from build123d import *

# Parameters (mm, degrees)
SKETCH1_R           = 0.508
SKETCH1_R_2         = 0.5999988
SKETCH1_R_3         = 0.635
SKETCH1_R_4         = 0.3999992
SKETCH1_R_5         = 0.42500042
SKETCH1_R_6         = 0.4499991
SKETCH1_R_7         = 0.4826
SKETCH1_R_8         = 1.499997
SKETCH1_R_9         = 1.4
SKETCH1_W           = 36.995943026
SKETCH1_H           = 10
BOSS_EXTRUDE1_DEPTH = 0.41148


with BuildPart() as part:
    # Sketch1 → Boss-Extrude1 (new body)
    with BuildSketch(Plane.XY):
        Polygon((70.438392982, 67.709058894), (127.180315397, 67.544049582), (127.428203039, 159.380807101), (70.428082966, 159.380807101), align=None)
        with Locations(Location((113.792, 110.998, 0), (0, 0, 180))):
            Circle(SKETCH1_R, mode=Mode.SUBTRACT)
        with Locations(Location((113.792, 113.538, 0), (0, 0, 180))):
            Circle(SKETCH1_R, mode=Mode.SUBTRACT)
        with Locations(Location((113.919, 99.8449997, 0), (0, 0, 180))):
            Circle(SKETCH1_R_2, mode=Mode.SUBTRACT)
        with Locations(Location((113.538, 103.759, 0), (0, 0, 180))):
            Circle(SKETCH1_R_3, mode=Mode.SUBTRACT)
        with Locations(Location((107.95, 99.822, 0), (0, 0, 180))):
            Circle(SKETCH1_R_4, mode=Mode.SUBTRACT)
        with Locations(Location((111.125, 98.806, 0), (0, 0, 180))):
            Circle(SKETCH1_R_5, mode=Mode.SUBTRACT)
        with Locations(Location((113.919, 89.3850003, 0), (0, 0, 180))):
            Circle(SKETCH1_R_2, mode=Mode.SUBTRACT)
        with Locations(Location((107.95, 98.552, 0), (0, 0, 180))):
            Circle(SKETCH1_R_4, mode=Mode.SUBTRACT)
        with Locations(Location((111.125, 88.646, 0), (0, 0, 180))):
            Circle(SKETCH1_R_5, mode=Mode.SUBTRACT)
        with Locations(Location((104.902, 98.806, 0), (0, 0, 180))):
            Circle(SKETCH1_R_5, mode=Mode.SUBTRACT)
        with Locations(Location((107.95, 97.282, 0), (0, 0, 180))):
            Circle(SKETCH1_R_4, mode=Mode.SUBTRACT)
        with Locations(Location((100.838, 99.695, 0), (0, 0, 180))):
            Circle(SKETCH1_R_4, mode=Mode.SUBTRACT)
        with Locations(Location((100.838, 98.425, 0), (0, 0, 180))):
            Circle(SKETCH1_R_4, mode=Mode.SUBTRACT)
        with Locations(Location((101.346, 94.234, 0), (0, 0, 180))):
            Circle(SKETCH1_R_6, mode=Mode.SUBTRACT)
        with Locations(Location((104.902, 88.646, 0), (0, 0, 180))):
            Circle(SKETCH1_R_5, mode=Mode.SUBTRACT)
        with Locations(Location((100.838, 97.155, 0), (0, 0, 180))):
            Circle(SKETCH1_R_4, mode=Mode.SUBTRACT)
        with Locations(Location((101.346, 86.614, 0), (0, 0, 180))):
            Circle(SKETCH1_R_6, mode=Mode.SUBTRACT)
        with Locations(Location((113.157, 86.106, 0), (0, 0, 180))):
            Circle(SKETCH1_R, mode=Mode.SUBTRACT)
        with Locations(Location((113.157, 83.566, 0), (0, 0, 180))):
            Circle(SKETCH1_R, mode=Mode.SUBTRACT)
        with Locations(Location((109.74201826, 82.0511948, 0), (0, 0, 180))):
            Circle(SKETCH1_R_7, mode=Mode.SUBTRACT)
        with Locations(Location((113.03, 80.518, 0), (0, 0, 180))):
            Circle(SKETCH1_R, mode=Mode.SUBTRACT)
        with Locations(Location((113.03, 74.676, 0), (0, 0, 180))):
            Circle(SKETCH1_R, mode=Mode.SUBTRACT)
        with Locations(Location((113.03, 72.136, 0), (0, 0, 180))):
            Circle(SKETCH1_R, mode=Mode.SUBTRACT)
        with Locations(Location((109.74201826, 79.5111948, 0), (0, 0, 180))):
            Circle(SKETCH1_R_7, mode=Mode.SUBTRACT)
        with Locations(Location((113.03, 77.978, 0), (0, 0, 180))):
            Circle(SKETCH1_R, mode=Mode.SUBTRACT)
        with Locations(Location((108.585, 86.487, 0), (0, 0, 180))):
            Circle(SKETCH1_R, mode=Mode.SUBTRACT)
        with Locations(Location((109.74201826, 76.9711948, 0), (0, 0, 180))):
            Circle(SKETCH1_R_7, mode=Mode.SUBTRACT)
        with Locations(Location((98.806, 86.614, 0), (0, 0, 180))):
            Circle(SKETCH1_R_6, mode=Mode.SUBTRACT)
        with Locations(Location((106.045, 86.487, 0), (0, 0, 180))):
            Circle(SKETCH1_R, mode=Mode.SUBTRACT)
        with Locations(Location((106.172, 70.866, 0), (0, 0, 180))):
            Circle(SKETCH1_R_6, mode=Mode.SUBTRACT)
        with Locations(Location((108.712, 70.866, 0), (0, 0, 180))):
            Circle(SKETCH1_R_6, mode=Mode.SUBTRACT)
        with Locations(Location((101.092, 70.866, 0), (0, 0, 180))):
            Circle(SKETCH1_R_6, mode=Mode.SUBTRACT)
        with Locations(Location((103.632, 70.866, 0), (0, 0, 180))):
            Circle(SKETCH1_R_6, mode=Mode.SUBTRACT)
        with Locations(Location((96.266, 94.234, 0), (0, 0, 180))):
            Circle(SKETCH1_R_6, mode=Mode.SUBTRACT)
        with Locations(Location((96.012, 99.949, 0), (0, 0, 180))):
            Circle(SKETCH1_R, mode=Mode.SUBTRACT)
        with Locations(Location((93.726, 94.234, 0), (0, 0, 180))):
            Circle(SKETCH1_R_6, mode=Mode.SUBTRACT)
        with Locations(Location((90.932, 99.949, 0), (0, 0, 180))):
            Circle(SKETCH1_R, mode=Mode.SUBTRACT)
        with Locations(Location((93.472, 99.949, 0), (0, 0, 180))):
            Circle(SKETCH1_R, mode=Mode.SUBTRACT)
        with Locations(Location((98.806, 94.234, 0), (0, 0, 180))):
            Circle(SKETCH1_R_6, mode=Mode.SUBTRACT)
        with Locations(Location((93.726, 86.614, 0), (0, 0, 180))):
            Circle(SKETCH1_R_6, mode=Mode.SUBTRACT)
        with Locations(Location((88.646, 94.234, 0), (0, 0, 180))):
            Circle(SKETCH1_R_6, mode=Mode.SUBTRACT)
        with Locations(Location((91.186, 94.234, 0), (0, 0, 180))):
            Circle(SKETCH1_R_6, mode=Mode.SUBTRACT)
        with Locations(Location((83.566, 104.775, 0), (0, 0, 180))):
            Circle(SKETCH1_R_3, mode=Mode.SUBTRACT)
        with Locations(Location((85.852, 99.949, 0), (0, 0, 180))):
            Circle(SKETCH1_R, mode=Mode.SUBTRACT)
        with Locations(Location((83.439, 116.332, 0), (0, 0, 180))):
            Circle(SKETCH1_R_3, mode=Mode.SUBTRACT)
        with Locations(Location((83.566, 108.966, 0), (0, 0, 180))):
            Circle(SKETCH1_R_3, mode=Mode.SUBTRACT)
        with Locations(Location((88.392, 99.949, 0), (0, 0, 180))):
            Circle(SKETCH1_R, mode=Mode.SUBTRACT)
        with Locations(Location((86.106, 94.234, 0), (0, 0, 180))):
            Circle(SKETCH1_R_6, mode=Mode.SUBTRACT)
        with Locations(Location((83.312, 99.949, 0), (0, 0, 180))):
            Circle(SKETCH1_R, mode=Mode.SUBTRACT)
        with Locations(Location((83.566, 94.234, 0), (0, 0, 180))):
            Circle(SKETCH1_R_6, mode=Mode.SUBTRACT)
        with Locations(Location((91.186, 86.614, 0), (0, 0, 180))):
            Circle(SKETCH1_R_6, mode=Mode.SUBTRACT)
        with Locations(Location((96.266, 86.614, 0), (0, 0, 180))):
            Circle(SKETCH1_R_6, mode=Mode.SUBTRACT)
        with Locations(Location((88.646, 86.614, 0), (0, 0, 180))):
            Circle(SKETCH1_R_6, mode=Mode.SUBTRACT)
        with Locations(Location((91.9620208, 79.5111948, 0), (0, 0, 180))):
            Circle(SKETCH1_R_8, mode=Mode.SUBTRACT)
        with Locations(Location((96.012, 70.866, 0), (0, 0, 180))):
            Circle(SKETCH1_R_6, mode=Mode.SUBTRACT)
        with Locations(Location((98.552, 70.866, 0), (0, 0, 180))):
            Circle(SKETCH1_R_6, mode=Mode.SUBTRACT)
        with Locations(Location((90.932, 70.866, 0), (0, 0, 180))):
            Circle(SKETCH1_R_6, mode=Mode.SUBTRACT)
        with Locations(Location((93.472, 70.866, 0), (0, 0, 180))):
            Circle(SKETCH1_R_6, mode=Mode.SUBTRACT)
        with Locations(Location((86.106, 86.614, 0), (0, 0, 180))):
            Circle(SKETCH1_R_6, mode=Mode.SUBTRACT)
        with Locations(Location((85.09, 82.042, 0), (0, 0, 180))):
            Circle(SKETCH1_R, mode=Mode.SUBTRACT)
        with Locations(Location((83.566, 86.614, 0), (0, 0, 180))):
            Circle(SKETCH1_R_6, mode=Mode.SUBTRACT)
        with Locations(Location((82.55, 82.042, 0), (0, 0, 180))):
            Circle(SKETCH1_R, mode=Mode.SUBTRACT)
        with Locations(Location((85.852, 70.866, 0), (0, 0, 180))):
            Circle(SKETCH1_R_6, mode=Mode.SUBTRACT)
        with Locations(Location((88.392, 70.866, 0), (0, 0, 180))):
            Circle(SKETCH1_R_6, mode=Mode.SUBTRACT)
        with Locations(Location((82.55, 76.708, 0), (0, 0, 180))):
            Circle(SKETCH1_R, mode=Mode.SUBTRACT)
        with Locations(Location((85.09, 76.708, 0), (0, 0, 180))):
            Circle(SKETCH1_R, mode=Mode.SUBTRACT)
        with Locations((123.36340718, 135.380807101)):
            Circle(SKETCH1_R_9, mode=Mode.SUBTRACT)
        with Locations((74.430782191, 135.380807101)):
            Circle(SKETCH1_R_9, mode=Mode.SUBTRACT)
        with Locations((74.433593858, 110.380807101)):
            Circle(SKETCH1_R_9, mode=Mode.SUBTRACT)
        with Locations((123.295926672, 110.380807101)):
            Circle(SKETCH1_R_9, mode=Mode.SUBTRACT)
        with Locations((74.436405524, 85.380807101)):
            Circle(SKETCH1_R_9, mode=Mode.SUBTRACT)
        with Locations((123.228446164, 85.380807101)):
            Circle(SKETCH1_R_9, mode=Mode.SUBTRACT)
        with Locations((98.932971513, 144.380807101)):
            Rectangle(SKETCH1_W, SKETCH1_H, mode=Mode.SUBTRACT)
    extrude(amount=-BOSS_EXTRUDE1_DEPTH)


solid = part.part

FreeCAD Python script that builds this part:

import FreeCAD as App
import Part
import Sketcher

V = App.Vector
Q = App.Units.Quantity

doc = App.newDocument("Part")
body = doc.addObject("PartDesign::Body", "Body")

sketch1 = body.newObject("Sketcher::SketchObject", "Sketch")
sketch1.AttachmentSupport = (doc.getObject("XY_Plane"), [""])
sketch1.MapMode = "FlatFace"
sketch1.addGeometry(Part.LineSegment(V(70.44, 67.71, 0), V(127.18, 67.54, 0)), False)
sketch1.addGeometry(Part.LineSegment(V(127.18, 67.54, 0), V(127.43, 159.38, 0)), False)
sketch1.addGeometry(Part.LineSegment(V(127.43, 159.38, 0), V(70.43, 159.38, 0)), False)
sketch1.addGeometry(Part.LineSegment(V(70.43, 159.38, 0), V(70.44, 67.71, 0)), False)
sketch1.addGeometry(Part.Circle(V(85.85, 70.87, 0), V(0, 0, 1), 0.45), False)
sketch1.addGeometry(Part.Circle(V(82.55, 76.71, 0), V(0, 0, 1), 0.51), False)
sketch1.addGeometry(Part.Circle(V(85.09, 76.71, 0), V(0, 0, 1), 0.51), False)
sketch1.addGeometry(Part.Circle(V(74.44, 85.38, 0), V(0, 0, 1), 1.4), False)
sketch1.addGeometry(Part.Circle(V(82.55, 82.04, 0), V(0, 0, 1), 0.51), False)
sketch1.addGeometry(Part.Circle(V(85.09, 82.04, 0), V(0, 0, 1), 0.51), False)
sketch1.addGeometry(Part.Circle(V(83.57, 86.61, 0), V(0, 0, 1), 0.45), False)
sketch1.addGeometry(Part.Circle(V(88.39, 70.87, 0), V(0, 0, 1), 0.45), False)
sketch1.addGeometry(Part.Circle(V(90.93, 70.87, 0), V(0, 0, 1), 0.45), False)
sketch1.addGeometry(Part.Circle(V(91.96, 79.51, 0), V(0, 0, 1), 1.5), False)
sketch1.addGeometry(Part.Circle(V(93.47, 70.87, 0), V(0, 0, 1), 0.45), False)
sketch1.addGeometry(Part.Circle(V(96.01, 70.87, 0), V(0, 0, 1), 0.45), False)
sketch1.addGeometry(Part.Circle(V(98.55, 70.87, 0), V(0, 0, 1), 0.45), False)
sketch1.addGeometry(Part.Circle(V(86.11, 86.61, 0), V(0, 0, 1), 0.45), False)
sketch1.addGeometry(Part.Circle(V(88.65, 86.61, 0), V(0, 0, 1), 0.45), False)
sketch1.addGeometry(Part.Circle(V(91.19, 86.61, 0), V(0, 0, 1), 0.45), False)
sketch1.addGeometry(Part.Circle(V(93.73, 86.61, 0), V(0, 0, 1), 0.45), False)
sketch1.addGeometry(Part.Circle(V(96.27, 86.61, 0), V(0, 0, 1), 0.45), False)
sketch1.addGeometry(Part.Circle(V(98.81, 86.61, 0), V(0, 0, 1), 0.45), False)
sketch1.addGeometry(Part.Circle(V(83.57, 94.23, 0), V(0, 0, 1), 0.45), False)
sketch1.addGeometry(Part.Circle(V(83.31, 99.95, 0), V(0, 0, 1), 0.51), False)
sketch1.addGeometry(Part.Circle(V(85.85, 99.95, 0), V(0, 0, 1), 0.51), False)
sketch1.addGeometry(Part.Circle(V(83.57, 104.78, 0), V(0, 0, 1), 0.64), False)
sketch1.addGeometry(Part.Circle(V(83.57, 108.97, 0), V(0, 0, 1), 0.64), False)
sketch1.addGeometry(Part.Circle(V(86.11, 94.23, 0), V(0, 0, 1), 0.45), False)
sketch1.addGeometry(Part.Circle(V(88.65, 94.23, 0), V(0, 0, 1), 0.45), False)
sketch1.addGeometry(Part.Circle(V(91.19, 94.23, 0), V(0, 0, 1), 0.45), False)
sketch1.addGeometry(Part.Circle(V(88.39, 99.95, 0), V(0, 0, 1), 0.51), False)
sketch1.addGeometry(Part.Circle(V(90.93, 99.95, 0), V(0, 0, 1), 0.51), False)
sketch1.addGeometry(Part.Circle(V(93.73, 94.23, 0), V(0, 0, 1), 0.45), False)
sketch1.addGeometry(Part.Circle(V(96.27, 94.23, 0), V(0, 0, 1), 0.45), False)
sketch1.addGeometry(Part.Circle(V(98.81, 94.23, 0), V(0, 0, 1), 0.45), False)
sketch1.addGeometry(Part.Circle(V(93.47, 99.95, 0), V(0, 0, 1), 0.51), False)
sketch1.addGeometry(Part.Circle(V(96.01, 99.95, 0), V(0, 0, 1), 0.51), False)
sketch1.addGeometry(Part.Circle(V(101.09, 70.87, 0), V(0, 0, 1), 0.45), False)
sketch1.addGeometry(Part.Circle(V(103.63, 70.87, 0), V(0, 0, 1), 0.45), False)
sketch1.addGeometry(Part.Circle(V(106.17, 70.87, 0), V(0, 0, 1), 0.45), False)
sketch1.addGeometry(Part.Circle(V(108.71, 70.87, 0), V(0, 0, 1), 0.45), False)
sketch1.addGeometry(Part.Circle(V(109.74, 76.97, 0), V(0, 0, 1), 0.48), False)
sketch1.addGeometry(Part.Circle(V(109.74, 79.51, 0), V(0, 0, 1), 0.48), False)
sketch1.addGeometry(Part.Circle(V(101.35, 86.61, 0), V(0, 0, 1), 0.45), False)
sketch1.addGeometry(Part.Circle(V(104.9, 88.65, 0), V(0, 0, 1), 0.43), False)
sketch1.addGeometry(Part.Circle(V(109.74, 82.05, 0), V(0, 0, 1), 0.48), False)
sketch1.addGeometry(Part.Circle(V(106.05, 86.49, 0), V(0, 0, 1), 0.51), False)
sketch1.addGeometry(Part.Circle(V(108.58, 86.49, 0), V(0, 0, 1), 0.51), False)
sketch1.addGeometry(Part.Circle(V(111.12, 88.65, 0), V(0, 0, 1), 0.43), False)
sketch1.addGeometry(Part.Circle(V(113.03, 72.14, 0), V(0, 0, 1), 0.51), False)
sketch1.addGeometry(Part.Circle(V(113.03, 74.68, 0), V(0, 0, 1), 0.51), False)
sketch1.addGeometry(Part.Circle(V(113.03, 77.98, 0), V(0, 0, 1), 0.51), False)
sketch1.addGeometry(Part.Circle(V(113.03, 80.52, 0), V(0, 0, 1), 0.51), False)
sketch1.addGeometry(Part.Circle(V(113.16, 83.57, 0), V(0, 0, 1), 0.51), False)
sketch1.addGeometry(Part.Circle(V(113.16, 86.11, 0), V(0, 0, 1), 0.51), False)
sketch1.addGeometry(Part.Circle(V(113.92, 89.39, 0), V(0, 0, 1), 0.6), False)
sketch1.addGeometry(Part.Circle(V(123.23, 85.38, 0), V(0, 0, 1), 1.4), False)
sketch1.addGeometry(Part.Circle(V(101.35, 94.23, 0), V(0, 0, 1), 0.45), False)
sketch1.addGeometry(Part.Circle(V(100.84, 97.16, 0), V(0, 0, 1), 0.4), False)
sketch1.addGeometry(Part.Circle(V(100.84, 98.42, 0), V(0, 0, 1), 0.4), False)
sketch1.addGeometry(Part.Circle(V(100.84, 99.69, 0), V(0, 0, 1), 0.4), False)
sketch1.addGeometry(Part.Circle(V(104.9, 98.81, 0), V(0, 0, 1), 0.43), False)
sketch1.addGeometry(Part.Circle(V(107.95, 97.28, 0), V(0, 0, 1), 0.4), False)
sketch1.addGeometry(Part.Circle(V(107.95, 98.55, 0), V(0, 0, 1), 0.4), False)
sketch1.addGeometry(Part.Circle(V(107.95, 99.82, 0), V(0, 0, 1), 0.4), False)
sketch1.addGeometry(Part.Circle(V(111.12, 98.81, 0), V(0, 0, 1), 0.43), False)
sketch1.addGeometry(Part.Circle(V(113.92, 99.84, 0), V(0, 0, 1), 0.6), False)
sketch1.addGeometry(Part.Circle(V(113.54, 103.76, 0), V(0, 0, 1), 0.64), False)
sketch1.addGeometry(Part.Circle(V(74.43, 110.38, 0), V(0, 0, 1), 1.4), False)
sketch1.addGeometry(Part.Circle(V(83.44, 116.33, 0), V(0, 0, 1), 0.64), False)
sketch1.addGeometry(Part.Circle(V(74.43, 135.38, 0), V(0, 0, 1), 1.4), False)
sketch1.addGeometry(Part.Circle(V(113.79, 111, 0), V(0, 0, 1), 0.51), False)
sketch1.addGeometry(Part.Circle(V(113.79, 113.54, 0), V(0, 0, 1), 0.51), False)
sketch1.addGeometry(Part.Circle(V(123.3, 110.38, 0), V(0, 0, 1), 1.4), False)
sketch1.addGeometry(Part.LineSegment(V(117.43, 139.38, 0), V(80.44, 139.38, 0)), False)
sketch1.addGeometry(Part.LineSegment(V(80.44, 139.38, 0), V(80.44, 149.38, 0)), False)
sketch1.addGeometry(Part.LineSegment(V(80.44, 149.38, 0), V(117.43, 149.38, 0)), False)
sketch1.addGeometry(Part.LineSegment(V(117.43, 149.38, 0), V(117.43, 139.38, 0)), False)
sketch1.addGeometry(Part.Circle(V(123.36, 135.38, 0), V(0, 0, 1), 1.4), False)
sketch1.addConstraint(Sketcher.Constraint("Coincident", 0, 2, 1, 1))
sketch1.addConstraint(Sketcher.Constraint("Coincident", 1, 2, 2, 1))
sketch1.addConstraint(Sketcher.Constraint("Coincident", 2, 2, 3, 1))
sketch1.addConstraint(Sketcher.Constraint("Coincident", 3, 2, 0, 1))
sketch1.addConstraint(Sketcher.Constraint("Coincident", 75, 2, 76, 1))
sketch1.addConstraint(Sketcher.Constraint("Coincident", 76, 2, 77, 1))
sketch1.addConstraint(Sketcher.Constraint("Coincident", 77, 2, 78, 1))
sketch1.addConstraint(Sketcher.Constraint("Coincident", 78, 2, 75, 1))
sketch1.addConstraint(Sketcher.Constraint("Horizontal", 2))
sketch1.addConstraint(Sketcher.Constraint("Horizontal", 75))
sketch1.addConstraint(Sketcher.Constraint("Vertical", 76))
sketch1.addConstraint(Sketcher.Constraint("Horizontal", 77))
sketch1.addConstraint(Sketcher.Constraint("Vertical", 78))
sketch1.addConstraint(Sketcher.Constraint("Equal", 5, 6))
sketch1.addConstraint(Sketcher.Constraint("Equal", 6, 8))
sketch1.addConstraint(Sketcher.Constraint("Equal", 8, 9))
sketch1.addConstraint(Sketcher.Constraint("Equal", 4, 10))
sketch1.addConstraint(Sketcher.Constraint("Equal", 10, 11))
sketch1.addConstraint(Sketcher.Constraint("Equal", 11, 12))
sketch1.addConstraint(Sketcher.Constraint("Equal", 12, 14))
sketch1.addConstraint(Sketcher.Constraint("Equal", 14, 15))
sketch1.addConstraint(Sketcher.Constraint("Equal", 15, 16))
sketch1.addConstraint(Sketcher.Constraint("Equal", 16, 17))
sketch1.addConstraint(Sketcher.Constraint("Equal", 17, 18))
sketch1.addConstraint(Sketcher.Constraint("Equal", 18, 19))
sketch1.addConstraint(Sketcher.Constraint("Equal", 19, 20))
sketch1.addConstraint(Sketcher.Constraint("Equal", 20, 21))
sketch1.addConstraint(Sketcher.Constraint("Equal", 21, 22))
sketch1.addConstraint(Sketcher.Constraint("Equal", 22, 23))
sketch1.addConstraint(Sketcher.Constraint("Equal", 9, 24))
sketch1.addConstraint(Sketcher.Constraint("Equal", 24, 25))
sketch1.addConstraint(Sketcher.Constraint("Equal", 26, 27))
sketch1.addConstraint(Sketcher.Constraint("Equal", 23, 28))
sketch1.addConstraint(Sketcher.Constraint("Equal", 28, 29))
sketch1.addConstraint(Sketcher.Constraint("Equal", 29, 30))
sketch1.addConstraint(Sketcher.Constraint("Equal", 25, 31))
sketch1.addConstraint(Sketcher.Constraint("Equal", 31, 32))
sketch1.addConstraint(Sketcher.Constraint("Equal", 30, 33))
sketch1.addConstraint(Sketcher.Constraint("Equal", 33, 34))
sketch1.addConstraint(Sketcher.Constraint("Equal", 34, 35))
sketch1.addConstraint(Sketcher.Constraint("Equal", 32, 36))
sketch1.addConstraint(Sketcher.Constraint("Equal", 36, 37))
sketch1.addConstraint(Sketcher.Constraint("Equal", 35, 38))
sketch1.addConstraint(Sketcher.Constraint("Equal", 38, 39))
sketch1.addConstraint(Sketcher.Constraint("Equal", 39, 40))
sketch1.addConstraint(Sketcher.Constraint("Equal", 40, 41))
sketch1.addConstraint(Sketcher.Constraint("Equal", 42, 43))
sketch1.addConstraint(Sketcher.Constraint("Equal", 41, 44))
sketch1.addConstraint(Sketcher.Constraint("Equal", 43, 46))
sketch1.addConstraint(Sketcher.Constraint("Equal", 37, 47))
sketch1.addConstraint(Sketcher.Constraint("Equal", 47, 48))
sketch1.addConstraint(Sketcher.Constraint("Equal", 45, 49))
sketch1.addConstraint(Sketcher.Constraint("Equal", 48, 50))
sketch1.addConstraint(Sketcher.Constraint("Equal", 50, 51))
sketch1.addConstraint(Sketcher.Constraint("Equal", 51, 52))
sketch1.addConstraint(Sketcher.Constraint("Equal", 52, 53))
sketch1.addConstraint(Sketcher.Constraint("Equal", 53, 54))
sketch1.addConstraint(Sketcher.Constraint("Equal", 54, 55))
sketch1.addConstraint(Sketcher.Constraint("Equal", 7, 57))
sketch1.addConstraint(Sketcher.Constraint("Equal", 44, 58))
sketch1.addConstraint(Sketcher.Constraint("Equal", 59, 60))
sketch1.addConstraint(Sketcher.Constraint("Equal", 60, 61))
sketch1.addConstraint(Sketcher.Constraint("Equal", 49, 62))
sketch1.addConstraint(Sketcher.Constraint("Equal", 61, 63))
sketch1.addConstraint(Sketcher.Constraint("Equal", 63, 64))
sketch1.addConstraint(Sketcher.Constraint("Equal", 64, 65))
sketch1.addConstraint(Sketcher.Constraint("Equal", 62, 66))
sketch1.addConstraint(Sketcher.Constraint("Equal", 56, 67))
sketch1.addConstraint(Sketcher.Constraint("Equal", 27, 68))
sketch1.addConstraint(Sketcher.Constraint("Equal", 57, 69))
sketch1.addConstraint(Sketcher.Constraint("Equal", 68, 70))
sketch1.addConstraint(Sketcher.Constraint("Equal", 69, 71))
sketch1.addConstraint(Sketcher.Constraint("Equal", 55, 72))
sketch1.addConstraint(Sketcher.Constraint("Equal", 72, 73))
sketch1.addConstraint(Sketcher.Constraint("Equal", 71, 74))
sketch1.addConstraint(Sketcher.Constraint("Equal", 74, 79))
sketch1.addConstraint(Sketcher.Constraint("Horizontal", 5, 3, 6, 3))
sketch1.addConstraint(Sketcher.Constraint("Horizontal", 8, 3, 9, 3))
sketch1.addConstraint(Sketcher.Constraint("Horizontal", 4, 3, 11, 3))
sketch1.addConstraint(Sketcher.Constraint("Horizontal", 11, 3, 12, 3))
sketch1.addConstraint(Sketcher.Constraint("Horizontal", 12, 3, 14, 3))
sketch1.addConstraint(Sketcher.Constraint("Horizontal", 14, 3, 15, 3))
sketch1.addConstraint(Sketcher.Constraint("Horizontal", 15, 3, 16, 3))
sketch1.addConstraint(Sketcher.Constraint("Horizontal", 10, 3, 17, 3))
sketch1.addConstraint(Sketcher.Constraint("Horizontal", 17, 3, 18, 3))
sketch1.addConstraint(Sketcher.Constraint("Horizontal", 18, 3, 19, 3))
sketch1.addConstraint(Sketcher.Constraint("Horizontal", 19, 3, 20, 3))
sketch1.addConstraint(Sketcher.Constraint("Horizontal", 20, 3, 21, 3))
sketch1.addConstraint(Sketcher.Constraint("Horizontal", 21, 3, 22, 3))
sketch1.addConstraint(Sketcher.Constraint("Horizontal", 24, 3, 25, 3))
sketch1.addConstraint(Sketcher.Constraint("Horizontal", 23, 3, 28, 3))
sketch1.addConstraint(Sketcher.Constraint("Horizontal", 28, 3, 29, 3))
sketch1.addConstraint(Sketcher.Constraint("Horizontal", 29, 3, 30, 3))
sketch1.addConstraint(Sketcher.Constraint("Horizontal", 25, 3, 31, 3))
sketch1.addConstraint(Sketcher.Constraint("Horizontal", 31, 3, 32, 3))
sketch1.addConstraint(Sketcher.Constraint("Horizontal", 30, 3, 33, 3))
sketch1.addConstraint(Sketcher.Constraint("Horizontal", 33, 3, 34, 3))
sketch1.addConstraint(Sketcher.Constraint("Horizontal", 34, 3, 35, 3))
sketch1.addConstraint(Sketcher.Constraint("Horizontal", 32, 3, 36, 3))
sketch1.addConstraint(Sketcher.Constraint("Horizontal", 36, 3, 37, 3))
sketch1.addConstraint(Sketcher.Constraint("Horizontal", 16, 3, 38, 3))
sketch1.addConstraint(Sketcher.Constraint("Horizontal", 38, 3, 39, 3))
sketch1.addConstraint(Sketcher.Constraint("Horizontal", 39, 3, 40, 3))
sketch1.addConstraint(Sketcher.Constraint("Horizontal", 40, 3, 41, 3))
sketch1.addConstraint(Sketcher.Constraint("Horizontal", 13, 3, 43, 3))
sketch1.addConstraint(Sketcher.Constraint("Horizontal", 22, 3, 44, 3))
sketch1.addConstraint(Sketcher.Constraint("Horizontal", 47, 3, 48, 3))
sketch1.addConstraint(Sketcher.Constraint("Horizontal", 45, 3, 49, 3))
sketch1.addConstraint(Sketcher.Constraint("Horizontal", 7, 3, 57, 3))
sketch1.addConstraint(Sketcher.Constraint("Horizontal", 35, 3, 58, 3))
sketch1.addConstraint(Sketcher.Constraint("Horizontal", 62, 3, 66, 3))
sketch1.addConstraint(Sketcher.Constraint("Horizontal", 69, 3, 74, 3))
sketch1.addConstraint(Sketcher.Constraint("Horizontal", 71, 3, 79, 3))
sketch1.addConstraint(Sketcher.Constraint("Vertical", 5, 3, 8, 3))
sketch1.addConstraint(Sketcher.Constraint("Vertical", 6, 3, 9, 3))
sketch1.addConstraint(Sketcher.Constraint("Vertical", 10, 3, 23, 3))
sketch1.addConstraint(Sketcher.Constraint("Vertical", 4, 3, 25, 3))
sketch1.addConstraint(Sketcher.Constraint("Vertical", 23, 3, 26, 3))
sketch1.addConstraint(Sketcher.Constraint("Vertical", 26, 3, 27, 3))
sketch1.addConstraint(Sketcher.Constraint("Vertical", 17, 3, 28, 3))
sketch1.addConstraint(Sketcher.Constraint("Vertical", 18, 3, 29, 3))
sketch1.addConstraint(Sketcher.Constraint("Vertical", 19, 3, 30, 3))
sketch1.addConstraint(Sketcher.Constraint("Vertical", 11, 3, 31, 3))
sketch1.addConstraint(Sketcher.Constraint("Vertical", 12, 3, 32, 3))
sketch1.addConstraint(Sketcher.Constraint("Vertical", 20, 3, 33, 3))
sketch1.addConstraint(Sketcher.Constraint("Vertical", 21, 3, 34, 3))
sketch1.addConstraint(Sketcher.Constraint("Vertical", 22, 3, 35, 3))
sketch1.addConstraint(Sketcher.Constraint("Vertical", 14, 3, 36, 3))
sketch1.addConstraint(Sketcher.Constraint("Vertical", 15, 3, 37, 3))
sketch1.addConstraint(Sketcher.Constraint("Vertical", 42, 3, 43, 3))
sketch1.addConstraint(Sketcher.Constraint("Vertical", 43, 3, 46, 3))
sketch1.addConstraint(Sketcher.Constraint("Vertical", 50, 3, 51, 3))
sketch1.addConstraint(Sketcher.Constraint("Vertical", 51, 3, 52, 3))
sketch1.addConstraint(Sketcher.Constraint("Vertical", 52, 3, 53, 3))
sketch1.addConstraint(Sketcher.Constraint("Vertical", 54, 3, 55, 3))
sketch1.addConstraint(Sketcher.Constraint("Vertical", 44, 3, 58, 3))
sketch1.addConstraint(Sketcher.Constraint("Vertical", 59, 3, 60, 3))
sketch1.addConstraint(Sketcher.Constraint("Vertical", 60, 3, 61, 3))
sketch1.addConstraint(Sketcher.Constraint("Vertical", 45, 3, 62, 3))
sketch1.addConstraint(Sketcher.Constraint("Vertical", 63, 3, 64, 3))
sketch1.addConstraint(Sketcher.Constraint("Vertical", 64, 3, 65, 3))
sketch1.addConstraint(Sketcher.Constraint("Vertical", 49, 3, 66, 3))
sketch1.addConstraint(Sketcher.Constraint("Vertical", 56, 3, 67, 3))
sketch1.addConstraint(Sketcher.Constraint("Vertical", 72, 3, 73, 3))
sketch1.addConstraint(Sketcher.Constraint("Diameter", 5, Q("0.04 in")))
sketch1.addConstraint(Sketcher.Constraint("Diameter", 26, Q("0.05 in")))
sketch1.addConstraint(Sketcher.Constraint("Diameter", 42, Q("0.038 in")))
sketch1.addConstraint(Sketcher.Constraint("Diameter", 4, 0.899998))
sketch1.addConstraint(Sketcher.Constraint("Diameter", 7, 2.8))
sketch1.addConstraint(Sketcher.Constraint("Diameter", 45, 0.850001))
sketch1.addConstraint(Sketcher.Constraint("Diameter", 59, 0.799998))
sketch1.addConstraint(Sketcher.Constraint("DistanceX", -1, 1, 4, 3, Q("3.38 in")))
sketch1.addConstraint(Sketcher.Constraint("DistanceY", -1, 1, 4, 3, Q("2.79 in")))
sketch1.addConstraint(Sketcher.Constraint("DistanceX", -1, 1, 5, 3, Q("3.25 in")))
sketch1.addConstraint(Sketcher.Constraint("DistanceY", -1, 1, 5, 3, Q("3.02 in")))
sketch1.addConstraint(Sketcher.Constraint("DistanceX", -1, 1, 6, 3, Q("3.35 in")))
sketch1.addConstraint(Sketcher.Constraint("DistanceY", -1, 1, 8, 3, Q("3.23 in")))
sketch1.addConstraint(Sketcher.Constraint("DistanceX", -1, 1, 10, 3, Q("3.29 in")))
sketch1.addConstraint(Sketcher.Constraint("DistanceY", -1, 1, 10, 3, Q("3.41 in")))
sketch1.addConstraint(Sketcher.Constraint("DistanceX", -1, 1, 11, 3, Q("3.48 in")))
sketch1.addConstraint(Sketcher.Constraint("DistanceX", -1, 1, 12, 3, Q("3.58 in")))
sketch1.addConstraint(Sketcher.Constraint("DistanceX", -1, 1, 14, 3, Q("3.68 in")))
sketch1.addConstraint(Sketcher.Constraint("DistanceX", -1, 1, 15, 3, Q("3.78 in")))
sketch1.addConstraint(Sketcher.Constraint("DistanceX", -1, 1, 16, 3, Q("3.88 in")))
sketch1.addConstraint(Sketcher.Constraint("DistanceX", -1, 1, 17, 3, Q("3.39 in")))
sketch1.addConstraint(Sketcher.Constraint("DistanceX", -1, 1, 18, 3, Q("3.49 in")))
sketch1.addConstraint(Sketcher.Constraint("DistanceX", -1, 1, 19, 3, Q("3.59 in")))
sketch1.addConstraint(Sketcher.Constraint("DistanceX", -1, 1, 20, 3, Q("3.69 in")))
sketch1.addConstraint(Sketcher.Constraint("DistanceX", -1, 1, 21, 3, Q("3.79 in")))
sketch1.addConstraint(Sketcher.Constraint("DistanceX", -1, 1, 22, 3, Q("3.89 in")))
sketch1.addConstraint(Sketcher.Constraint("DistanceY", -1, 1, 23, 3, Q("3.71 in")))
sketch1.addConstraint(Sketcher.Constraint("DistanceX", -1, 1, 24, 3, Q("3.28 in")))
sketch1.addConstraint(Sketcher.Constraint("DistanceY", -1, 1, 27, 3, Q("4.29 in")))
sketch1.addConstraint(Sketcher.Constraint("DistanceX", -1, 1, 38, 3, Q("3.98 in")))
sketch1.addConstraint(Sketcher.Constraint("DistanceX", -1, 1, 39, 3, Q("4.08 in")))
sketch1.addConstraint(Sketcher.Constraint("DistanceX", -1, 1, 40, 3, Q("4.18 in")))
sketch1.addConstraint(Sketcher.Constraint("DistanceX", -1, 1, 41, 3, Q("4.28 in")))
sketch1.addConstraint(Sketcher.Constraint("DistanceX", -1, 1, 44, 3, Q("3.99 in")))
sketch1.addConstraint(Sketcher.Constraint("DistanceX", -1, 1, 45, 3, Q("4.13 in")))
sketch1.addConstraint(Sketcher.Constraint("DistanceY", -1, 1, 45, 3, Q("3.49 in")))
sketch1.addConstraint(Sketcher.Constraint("DistanceX", -1, 1, 50, 3, Q("4.45 in")))
sketch1.addConstraint(Sketcher.Constraint("DistanceY", -1, 1, 50, 3, Q("2.84 in")))
sketch1.addConstraint(Sketcher.Constraint("DistanceY", -1, 1, 51, 3, Q("2.94 in")))
sketch1.addConstraint(Sketcher.Constraint("DistanceY", -1, 1, 52, 3, Q("3.07 in")))
sketch1.addConstraint(Sketcher.Constraint("DistanceY", -1, 1, 53, 3, Q("3.17 in")))
sketch1.addConstraint(Sketcher.Constraint("DistanceY", -1, 1, 54, 3, Q("3.29 in")))
sketch1.addConstraint(Sketcher.Constraint("DistanceY", -1, 1, 55, 3, Q("3.39 in")))
sketch1.addConstraint(Sketcher.Constraint("DistanceX", -1, 1, 59, 3, Q("3.97 in")))
sketch1.addConstraint(Sketcher.Constraint("DistanceY", -1, 1, 62, 3, Q("3.89 in")))
sketch1.addConstraint(Sketcher.Constraint("DistanceX", -1, 1, 63, 3, Q("4.25 in")))
sketch1.addConstraint(Sketcher.Constraint("DistanceY", -1, 1, 63, 3, Q("3.83 in")))
sketch1.addConstraint(Sketcher.Constraint("DistanceY", -1, 1, 64, 3, Q("3.88 in")))
sketch1.addConstraint(Sketcher.Constraint("DistanceY", -1, 1, 65, 3, Q("3.93 in")))
sketch1.addConstraint(Sketcher.Constraint("DistanceX", -1, 1, 68, 3, Q("4.47 in")))
sketch1.addConstraint(Sketcher.Constraint("DistanceY", -1, 1, 70, 3, Q("4.58 in")))
sketch1.addConstraint(Sketcher.Constraint("DistanceX", -1, 1, 72, 3, Q("4.48 in")))
sketch1.addConstraint(Sketcher.Constraint("DistanceY", -1, 1, 72, 3, Q("4.37 in")))
sketch1.addConstraint(Sketcher.Constraint("DistanceY", -1, 1, 73, 3, Q("4.47 in")))
sketch1.addConstraint(Sketcher.Constraint("DistanceY", -1, 1, 24, 3, Q("3.935 in")))
sketch1.addConstraint(Sketcher.Constraint("DistanceY", -1, 1, 26, 3, Q("4.125 in")))
sketch1.addConstraint(Sketcher.Constraint("DistanceX", -1, 1, 47, 3, Q("4.175 in")))
sketch1.addConstraint(Sketcher.Constraint("DistanceY", -1, 1, 47, 3, Q("3.405 in")))
sketch1.addConstraint(Sketcher.Constraint("DistanceX", -1, 1, 48, 3, Q("4.275 in")))
sketch1.addConstraint(Sketcher.Constraint("DistanceX", -1, 1, 49, 3, Q("4.375 in")))
sketch1.addConstraint(Sketcher.Constraint("DistanceX", -1, 1, 54, 3, Q("4.455 in")))
sketch1.addConstraint(Sketcher.Constraint("DistanceX", -1, 1, 56, 3, Q("4.485 in")))
sketch1.addConstraint(Sketcher.Constraint("DistanceY", -1, 1, 59, 3, Q("3.825 in")))
sketch1.addConstraint(Sketcher.Constraint("DistanceY", -1, 1, 60, 3, Q("3.875 in")))
sketch1.addConstraint(Sketcher.Constraint("DistanceY", -1, 1, 61, 3, Q("3.925 in")))
sketch1.addConstraint(Sketcher.Constraint("DistanceY", -1, 1, 68, 3, Q("4.085 in")))
sketch1.addConstraint(Sketcher.Constraint("DistanceX", -1, 1, 70, 3, Q("3.285 in")))
sketch1.addConstraint(Sketcher.Constraint("Diameter", 13, 2.999994))
sketch1.addConstraint(Sketcher.Constraint("Diameter", 56, 1.199998))
sketch1.addConstraint(Sketcher.Constraint("DistanceY", 76, 1, 76, 2, 10.0))
sketch1.addConstraint(Sketcher.Constraint("DistanceX", 2, 2, 2, 1, 57.00012))
sketch1.addConstraint(Sketcher.Constraint("DistanceY", -1, 1, 56, 3, 89.385))
sketch1.addConstraint(Sketcher.Constraint("DistanceY", -1, 1, 67, 3, 99.845))
sketch1.addConstraint(Sketcher.Constraint("DistanceX", -1, 1, 75, 2, 80.435))
sketch1.addConstraint(Sketcher.Constraint("Distance", 3, 91.671749))
sketch1.addConstraint(Sketcher.Constraint("DistanceX", 75, 2, 75, 1, 36.995943))
sketch1.addConstraint(Sketcher.Constraint("DistanceX", -1, 1, 13, 3, 91.962021))
sketch1.addConstraint(Sketcher.Constraint("DistanceX", -1, 1, 42, 3, 109.742018))
sketch1.addConstraint(Sketcher.Constraint("DistanceY", -1, 1, 0, 2, 67.54405))
sketch1.addConstraint(Sketcher.Constraint("DistanceY", -1, 1, 3, 2, 67.709059))
sketch1.addConstraint(Sketcher.Constraint("Distance", 0, 56.742162))
sketch1.addConstraint(Sketcher.Constraint("DistanceX", -1, 1, 7, 3, 74.436406))
sketch1.addConstraint(Sketcher.Constraint("DistanceY", -1, 1, 7, 3, 85.380807))
sketch1.addConstraint(Sketcher.Constraint("DistanceY", -1, 1, 13, 3, 79.511195))
sketch1.addConstraint(Sketcher.Constraint("DistanceY", -1, 1, 42, 3, 76.971195))
sketch1.addConstraint(Sketcher.Constraint("DistanceY", -1, 1, 46, 3, 82.051195))
sketch1.addConstraint(Sketcher.Constraint("DistanceX", -1, 1, 57, 3, 123.228446))
sketch1.addConstraint(Sketcher.Constraint("DistanceX", -1, 1, 69, 3, 74.433594))
sketch1.addConstraint(Sketcher.Constraint("DistanceY", -1, 1, 69, 3, 110.380807))
sketch1.addConstraint(Sketcher.Constraint("DistanceX", -1, 1, 71, 3, 74.430782))
sketch1.addConstraint(Sketcher.Constraint("DistanceY", -1, 1, 71, 3, 135.380807))
sketch1.addConstraint(Sketcher.Constraint("DistanceX", -1, 1, 74, 3, 123.295927))
sketch1.addConstraint(Sketcher.Constraint("DistanceX", -1, 1, 79, 3, 123.363407))
sketch1.addConstraint(Sketcher.Constraint("DistanceX", -1, 1, 0, 2, 127.180315))
sketch1.addConstraint(Sketcher.Constraint("DistanceX", -1, 1, 1, 2, 127.428203))
sketch1.addConstraint(Sketcher.Constraint("DistanceY", -1, 1, 75, 2, 139.380807))
pad1 = body.newObject("PartDesign::Pad", "Pad")
pad1.Profile = sketch1
pad1.Length = Q("0.0162 in")
pad1.Reversed = True

doc.recompute()
